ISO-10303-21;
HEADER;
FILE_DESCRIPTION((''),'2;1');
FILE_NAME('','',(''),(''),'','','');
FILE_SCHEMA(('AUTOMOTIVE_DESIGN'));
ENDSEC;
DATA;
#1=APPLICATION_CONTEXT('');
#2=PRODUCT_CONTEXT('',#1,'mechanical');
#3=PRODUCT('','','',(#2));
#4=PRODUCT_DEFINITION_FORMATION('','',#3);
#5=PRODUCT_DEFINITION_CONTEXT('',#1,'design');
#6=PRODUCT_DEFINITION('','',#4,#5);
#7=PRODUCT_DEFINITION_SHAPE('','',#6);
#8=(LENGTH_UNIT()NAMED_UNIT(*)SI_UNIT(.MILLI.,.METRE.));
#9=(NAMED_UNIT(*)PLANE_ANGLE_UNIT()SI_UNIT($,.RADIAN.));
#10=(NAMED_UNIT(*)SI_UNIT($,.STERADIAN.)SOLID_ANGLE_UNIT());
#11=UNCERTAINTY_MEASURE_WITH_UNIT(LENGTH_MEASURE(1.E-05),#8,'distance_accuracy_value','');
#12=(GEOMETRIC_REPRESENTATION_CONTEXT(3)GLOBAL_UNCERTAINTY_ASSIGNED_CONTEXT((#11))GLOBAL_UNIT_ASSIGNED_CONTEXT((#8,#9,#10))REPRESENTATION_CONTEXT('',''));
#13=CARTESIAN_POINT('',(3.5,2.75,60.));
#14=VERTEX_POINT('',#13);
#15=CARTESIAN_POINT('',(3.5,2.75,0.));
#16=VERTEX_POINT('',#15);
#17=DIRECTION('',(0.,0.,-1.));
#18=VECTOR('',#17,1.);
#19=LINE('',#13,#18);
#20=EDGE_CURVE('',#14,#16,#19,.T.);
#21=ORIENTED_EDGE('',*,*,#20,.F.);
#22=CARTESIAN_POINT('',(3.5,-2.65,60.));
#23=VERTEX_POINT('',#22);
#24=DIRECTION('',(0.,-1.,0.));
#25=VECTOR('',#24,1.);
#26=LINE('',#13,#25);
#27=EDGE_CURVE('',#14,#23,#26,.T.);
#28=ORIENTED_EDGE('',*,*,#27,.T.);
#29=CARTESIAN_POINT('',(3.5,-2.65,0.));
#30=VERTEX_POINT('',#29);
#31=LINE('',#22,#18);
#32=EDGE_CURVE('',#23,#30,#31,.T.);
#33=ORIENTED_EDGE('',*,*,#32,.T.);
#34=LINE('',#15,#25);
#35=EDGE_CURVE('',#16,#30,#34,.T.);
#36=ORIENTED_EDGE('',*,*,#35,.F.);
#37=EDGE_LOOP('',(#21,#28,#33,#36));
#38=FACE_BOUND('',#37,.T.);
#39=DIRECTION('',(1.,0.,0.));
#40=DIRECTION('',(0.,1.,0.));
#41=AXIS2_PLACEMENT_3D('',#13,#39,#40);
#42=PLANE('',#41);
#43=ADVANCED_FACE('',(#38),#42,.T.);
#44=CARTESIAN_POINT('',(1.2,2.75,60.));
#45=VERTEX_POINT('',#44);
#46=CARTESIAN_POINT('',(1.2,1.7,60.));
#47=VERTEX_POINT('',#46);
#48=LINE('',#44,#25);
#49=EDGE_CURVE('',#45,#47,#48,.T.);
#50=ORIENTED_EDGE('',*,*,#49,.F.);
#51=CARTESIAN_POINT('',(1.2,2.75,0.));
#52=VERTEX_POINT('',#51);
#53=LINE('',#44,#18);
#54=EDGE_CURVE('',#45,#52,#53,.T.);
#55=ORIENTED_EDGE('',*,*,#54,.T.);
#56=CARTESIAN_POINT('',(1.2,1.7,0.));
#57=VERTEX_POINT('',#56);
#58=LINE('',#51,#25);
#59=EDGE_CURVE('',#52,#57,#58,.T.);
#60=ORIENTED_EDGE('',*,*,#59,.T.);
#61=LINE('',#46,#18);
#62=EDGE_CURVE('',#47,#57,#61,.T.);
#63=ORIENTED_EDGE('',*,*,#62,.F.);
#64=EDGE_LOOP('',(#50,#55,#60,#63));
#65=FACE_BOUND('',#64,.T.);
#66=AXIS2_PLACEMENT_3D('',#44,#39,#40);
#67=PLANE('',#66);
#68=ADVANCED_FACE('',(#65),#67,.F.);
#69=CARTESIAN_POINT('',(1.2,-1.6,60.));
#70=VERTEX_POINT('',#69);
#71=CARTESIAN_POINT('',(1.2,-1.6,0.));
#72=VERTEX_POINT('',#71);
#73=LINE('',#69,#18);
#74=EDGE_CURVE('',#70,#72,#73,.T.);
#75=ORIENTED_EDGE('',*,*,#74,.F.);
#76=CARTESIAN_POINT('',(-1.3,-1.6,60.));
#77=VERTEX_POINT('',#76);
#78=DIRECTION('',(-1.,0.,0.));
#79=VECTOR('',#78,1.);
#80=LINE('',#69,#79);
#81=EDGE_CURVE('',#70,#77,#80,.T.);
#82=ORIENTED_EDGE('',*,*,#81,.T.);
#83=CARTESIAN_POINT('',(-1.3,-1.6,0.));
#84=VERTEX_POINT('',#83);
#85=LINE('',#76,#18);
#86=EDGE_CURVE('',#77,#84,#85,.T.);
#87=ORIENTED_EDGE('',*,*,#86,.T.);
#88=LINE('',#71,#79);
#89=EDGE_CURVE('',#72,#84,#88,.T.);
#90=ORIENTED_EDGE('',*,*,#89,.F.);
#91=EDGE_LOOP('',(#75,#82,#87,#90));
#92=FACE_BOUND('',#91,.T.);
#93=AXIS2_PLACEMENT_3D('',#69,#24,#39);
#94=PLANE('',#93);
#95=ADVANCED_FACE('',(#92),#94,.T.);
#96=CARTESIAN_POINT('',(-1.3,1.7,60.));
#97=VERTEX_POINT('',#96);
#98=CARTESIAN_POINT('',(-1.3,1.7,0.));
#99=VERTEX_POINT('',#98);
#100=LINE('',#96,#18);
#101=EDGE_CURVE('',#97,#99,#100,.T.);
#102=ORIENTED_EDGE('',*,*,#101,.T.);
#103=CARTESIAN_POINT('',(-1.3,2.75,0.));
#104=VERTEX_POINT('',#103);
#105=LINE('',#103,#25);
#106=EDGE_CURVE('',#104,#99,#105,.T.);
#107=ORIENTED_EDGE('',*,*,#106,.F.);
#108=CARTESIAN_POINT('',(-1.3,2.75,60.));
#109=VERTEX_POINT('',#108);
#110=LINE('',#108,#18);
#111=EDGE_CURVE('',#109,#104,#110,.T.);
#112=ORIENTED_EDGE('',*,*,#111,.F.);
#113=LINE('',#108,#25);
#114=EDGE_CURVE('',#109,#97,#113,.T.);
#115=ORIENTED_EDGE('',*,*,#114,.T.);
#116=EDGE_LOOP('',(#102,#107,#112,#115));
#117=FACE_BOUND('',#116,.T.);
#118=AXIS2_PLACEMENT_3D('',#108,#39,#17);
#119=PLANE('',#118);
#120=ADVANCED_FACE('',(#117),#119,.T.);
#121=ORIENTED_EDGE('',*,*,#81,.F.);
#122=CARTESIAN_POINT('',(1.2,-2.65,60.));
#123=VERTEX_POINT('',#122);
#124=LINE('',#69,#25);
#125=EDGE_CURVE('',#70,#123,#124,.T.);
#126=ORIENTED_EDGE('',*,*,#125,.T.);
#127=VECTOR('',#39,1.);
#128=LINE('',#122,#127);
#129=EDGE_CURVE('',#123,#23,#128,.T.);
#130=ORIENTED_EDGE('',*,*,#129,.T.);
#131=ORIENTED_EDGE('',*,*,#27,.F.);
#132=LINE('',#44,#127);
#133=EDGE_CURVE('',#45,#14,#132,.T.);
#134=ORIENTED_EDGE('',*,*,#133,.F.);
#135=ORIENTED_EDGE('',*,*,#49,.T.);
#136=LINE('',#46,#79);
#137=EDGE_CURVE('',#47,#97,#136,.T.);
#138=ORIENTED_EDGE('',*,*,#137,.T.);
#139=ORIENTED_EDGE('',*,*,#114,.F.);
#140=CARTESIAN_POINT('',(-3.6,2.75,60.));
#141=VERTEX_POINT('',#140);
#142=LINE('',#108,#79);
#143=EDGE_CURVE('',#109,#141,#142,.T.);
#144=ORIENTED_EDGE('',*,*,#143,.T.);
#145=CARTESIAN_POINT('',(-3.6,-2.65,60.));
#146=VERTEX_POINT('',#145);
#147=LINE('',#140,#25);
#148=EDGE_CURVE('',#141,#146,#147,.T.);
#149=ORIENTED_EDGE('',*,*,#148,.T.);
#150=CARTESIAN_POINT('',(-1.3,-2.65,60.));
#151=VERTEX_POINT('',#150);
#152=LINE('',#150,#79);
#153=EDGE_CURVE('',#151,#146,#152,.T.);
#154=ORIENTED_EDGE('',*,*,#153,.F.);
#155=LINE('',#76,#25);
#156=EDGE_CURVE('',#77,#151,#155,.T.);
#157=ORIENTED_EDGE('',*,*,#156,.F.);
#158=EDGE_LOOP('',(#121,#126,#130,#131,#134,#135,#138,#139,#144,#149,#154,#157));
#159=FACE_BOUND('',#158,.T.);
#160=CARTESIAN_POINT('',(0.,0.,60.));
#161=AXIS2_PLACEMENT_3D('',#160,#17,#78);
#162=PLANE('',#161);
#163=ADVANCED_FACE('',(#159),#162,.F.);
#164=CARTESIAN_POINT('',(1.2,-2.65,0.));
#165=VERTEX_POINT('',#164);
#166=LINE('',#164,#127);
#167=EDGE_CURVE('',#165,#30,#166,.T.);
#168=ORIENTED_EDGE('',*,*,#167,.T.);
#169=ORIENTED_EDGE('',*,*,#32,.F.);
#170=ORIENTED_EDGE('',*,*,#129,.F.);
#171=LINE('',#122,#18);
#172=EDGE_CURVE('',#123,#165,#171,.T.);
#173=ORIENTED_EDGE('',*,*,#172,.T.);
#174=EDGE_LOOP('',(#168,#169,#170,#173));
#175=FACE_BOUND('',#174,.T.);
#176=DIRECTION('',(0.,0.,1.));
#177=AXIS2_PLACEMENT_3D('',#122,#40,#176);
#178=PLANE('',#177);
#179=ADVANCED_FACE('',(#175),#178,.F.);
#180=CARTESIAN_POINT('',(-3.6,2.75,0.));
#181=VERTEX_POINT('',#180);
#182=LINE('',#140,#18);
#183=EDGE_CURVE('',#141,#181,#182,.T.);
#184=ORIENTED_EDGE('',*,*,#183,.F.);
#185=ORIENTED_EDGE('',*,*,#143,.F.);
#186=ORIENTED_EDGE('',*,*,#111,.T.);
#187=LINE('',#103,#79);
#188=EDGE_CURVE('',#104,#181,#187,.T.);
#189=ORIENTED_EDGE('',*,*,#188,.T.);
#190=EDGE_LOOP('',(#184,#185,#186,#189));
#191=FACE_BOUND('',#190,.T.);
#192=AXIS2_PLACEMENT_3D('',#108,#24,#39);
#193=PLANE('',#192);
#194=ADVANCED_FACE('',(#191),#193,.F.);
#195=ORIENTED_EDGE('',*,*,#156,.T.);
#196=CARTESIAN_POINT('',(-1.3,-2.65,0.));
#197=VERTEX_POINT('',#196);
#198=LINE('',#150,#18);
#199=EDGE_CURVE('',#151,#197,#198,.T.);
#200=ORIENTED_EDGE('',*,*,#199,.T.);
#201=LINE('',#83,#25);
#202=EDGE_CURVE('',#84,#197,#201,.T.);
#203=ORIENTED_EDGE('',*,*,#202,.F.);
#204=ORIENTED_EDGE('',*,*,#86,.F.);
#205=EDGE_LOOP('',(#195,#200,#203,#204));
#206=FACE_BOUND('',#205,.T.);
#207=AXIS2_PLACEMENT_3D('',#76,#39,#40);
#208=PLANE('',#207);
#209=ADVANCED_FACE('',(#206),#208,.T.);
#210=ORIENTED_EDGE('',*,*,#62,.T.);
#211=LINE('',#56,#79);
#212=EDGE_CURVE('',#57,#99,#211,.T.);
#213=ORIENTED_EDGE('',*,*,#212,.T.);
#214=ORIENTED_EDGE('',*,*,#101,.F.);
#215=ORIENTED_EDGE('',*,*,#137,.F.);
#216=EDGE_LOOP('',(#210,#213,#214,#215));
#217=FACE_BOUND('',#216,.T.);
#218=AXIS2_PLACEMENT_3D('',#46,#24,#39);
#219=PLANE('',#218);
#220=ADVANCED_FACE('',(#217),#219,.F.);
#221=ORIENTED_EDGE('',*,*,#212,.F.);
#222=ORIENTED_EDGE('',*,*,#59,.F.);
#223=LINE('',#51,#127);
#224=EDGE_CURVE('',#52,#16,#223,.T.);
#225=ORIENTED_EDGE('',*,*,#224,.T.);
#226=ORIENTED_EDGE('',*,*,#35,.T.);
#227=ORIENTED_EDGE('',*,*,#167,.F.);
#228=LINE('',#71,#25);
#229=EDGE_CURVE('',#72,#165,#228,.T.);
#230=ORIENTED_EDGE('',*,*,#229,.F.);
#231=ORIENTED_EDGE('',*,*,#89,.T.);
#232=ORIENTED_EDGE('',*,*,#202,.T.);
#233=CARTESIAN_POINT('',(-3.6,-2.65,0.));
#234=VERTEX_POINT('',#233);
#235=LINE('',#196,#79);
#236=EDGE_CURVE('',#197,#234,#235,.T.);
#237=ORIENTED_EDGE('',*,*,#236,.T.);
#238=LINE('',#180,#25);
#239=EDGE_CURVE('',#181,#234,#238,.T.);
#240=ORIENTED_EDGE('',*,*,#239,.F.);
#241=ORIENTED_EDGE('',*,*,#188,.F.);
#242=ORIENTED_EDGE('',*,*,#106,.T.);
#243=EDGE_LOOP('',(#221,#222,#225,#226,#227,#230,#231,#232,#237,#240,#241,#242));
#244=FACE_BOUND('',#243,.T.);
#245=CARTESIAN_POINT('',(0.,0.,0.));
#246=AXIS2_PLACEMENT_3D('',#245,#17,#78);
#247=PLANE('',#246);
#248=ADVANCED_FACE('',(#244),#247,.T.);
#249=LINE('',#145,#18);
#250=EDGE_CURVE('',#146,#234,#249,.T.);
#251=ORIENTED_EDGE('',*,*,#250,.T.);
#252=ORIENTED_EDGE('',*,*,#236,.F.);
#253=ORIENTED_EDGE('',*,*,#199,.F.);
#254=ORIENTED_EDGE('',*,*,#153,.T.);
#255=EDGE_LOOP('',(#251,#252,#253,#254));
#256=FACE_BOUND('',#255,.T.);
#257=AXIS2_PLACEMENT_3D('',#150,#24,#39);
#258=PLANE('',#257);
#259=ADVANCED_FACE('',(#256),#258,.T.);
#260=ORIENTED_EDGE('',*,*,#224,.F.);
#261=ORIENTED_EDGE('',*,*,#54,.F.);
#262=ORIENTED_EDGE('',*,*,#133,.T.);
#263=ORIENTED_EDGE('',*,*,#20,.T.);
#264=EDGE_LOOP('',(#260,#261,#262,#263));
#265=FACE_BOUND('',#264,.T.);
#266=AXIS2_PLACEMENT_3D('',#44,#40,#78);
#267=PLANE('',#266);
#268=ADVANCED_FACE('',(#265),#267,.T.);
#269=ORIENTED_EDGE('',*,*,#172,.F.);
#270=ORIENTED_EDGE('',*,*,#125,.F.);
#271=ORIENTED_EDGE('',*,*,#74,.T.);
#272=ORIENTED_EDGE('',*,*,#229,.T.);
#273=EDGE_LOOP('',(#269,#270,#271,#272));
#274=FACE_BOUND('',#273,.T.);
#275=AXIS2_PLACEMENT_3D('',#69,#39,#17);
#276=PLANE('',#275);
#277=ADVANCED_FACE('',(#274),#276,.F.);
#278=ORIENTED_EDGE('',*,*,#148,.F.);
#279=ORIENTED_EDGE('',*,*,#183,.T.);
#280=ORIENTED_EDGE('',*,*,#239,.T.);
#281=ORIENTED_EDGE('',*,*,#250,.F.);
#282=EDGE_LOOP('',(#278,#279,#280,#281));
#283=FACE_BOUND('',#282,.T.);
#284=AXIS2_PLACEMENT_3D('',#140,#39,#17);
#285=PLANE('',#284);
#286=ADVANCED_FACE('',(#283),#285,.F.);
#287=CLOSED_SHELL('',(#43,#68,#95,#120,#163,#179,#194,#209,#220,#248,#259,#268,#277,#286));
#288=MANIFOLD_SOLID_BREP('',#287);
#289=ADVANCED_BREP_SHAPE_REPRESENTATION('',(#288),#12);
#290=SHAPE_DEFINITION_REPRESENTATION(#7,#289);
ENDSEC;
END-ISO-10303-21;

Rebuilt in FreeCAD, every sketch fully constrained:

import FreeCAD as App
import Part
import Sketcher
Q = App.Units.Quantity


def add_polygon(sketch, points):
    """Adds a closed chain of lines whose ends are joined by coincident constraints."""
    first, n = sketch.GeometryCount, len(points)
    for a, b in zip(points, points[1:] + points[:1]):
        sketch.addGeometry(Part.LineSegment(App.Vector(*a, 0), App.Vector(*b, 0)), False)
    for i in range(n):
        sketch.addConstraint(Sketcher.Constraint("Coincident", first + i, 2, first + (i + 1) % n, 1))

doc = App.newDocument("Part")
body = doc.addObject("PartDesign::Body", "Body")

# Sketch on XY plane
sketch1 = body.newObject("Sketcher::SketchObject", "Sketch")
sketch1.AttachmentSupport = (doc.getObject("XY_Plane"), [""])
sketch1.MapMode = "FlatFace"
add_polygon(sketch1, [(-1.3, 2.8), (-3.6, 2.8), (-3.6, -2.6), (-1.3, -2.6), (-1.3, -1.6), (1.2, -1.6), (1.2, -2.6), (3.5, -2.6), (3.5, 2.8), (1.2, 2.8), (1.2, 1.7), (-1.3, 1.7)])  # lines 0-11
sketch1.addConstraint(Sketcher.Constraint("Horizontal", 0))
sketch1.addConstraint(Sketcher.Constraint("Vertical", 1))
sketch1.addConstraint(Sketcher.Constraint("Horizontal", 2))
sketch1.addConstraint(Sketcher.Constraint("Vertical", 3))
sketch1.addConstraint(Sketcher.Constraint("Horizontal", 4))
sketch1.addConstraint(Sketcher.Constraint("Vertical", 5))
sketch1.addConstraint(Sketcher.Constraint("Horizontal", 6))
sketch1.addConstraint(Sketcher.Constraint("Vertical", 7))
sketch1.addConstraint(Sketcher.Constraint("Horizontal", 8))
sketch1.addConstraint(Sketcher.Constraint("Vertical", 9))
sketch1.addConstraint(Sketcher.Constraint("Horizontal", 10))
sketch1.addConstraint(Sketcher.Constraint("Vertical", 11))
sketch1.addConstraint(Sketcher.Constraint("Horizontal", 2, 2, 5, 2))
sketch1.addConstraint(Sketcher.Constraint("Horizontal", 0, 2, 7, 2))
sketch1.addConstraint(Sketcher.Constraint("Vertical", 5, 2, 8, 2))
sketch1.addConstraint(Sketcher.Constraint("Vertical", 3, 2, 10, 2))
sketch1.addConstraint(Sketcher.Constraint("Equal", 2, 6))
sketch1.addConstraint(Sketcher.Constraint("Equal", 5, 9))
sketch1.addConstraint(Sketcher.Constraint("DistanceX", 0, 2, 0, 1, Q("2.3 mm")))
sketch1.addConstraint(Sketcher.Constraint("DistanceX", 4, 1, 4, 2, Q("2.5 mm")))
sketch1.addConstraint(Sketcher.Constraint("DistanceY", 1, 2, 1, 1, Q("5.4 mm")))
sketch1.addConstraint(Sketcher.Constraint("DistanceY", 3, 1, 3, 2, Q("1.05 mm")))
sketch1.addConstraint(Sketcher.Constraint("DistanceX", 0, 2, -1, 1, Q("3.6 mm")))
sketch1.addConstraint(Sketcher.Constraint("DistanceY", 3, 2, -1, 1, Q("1.6 mm")))
pad1 = body.newObject("PartDesign::Pad", "Pad")
pad1.Profile = sketch1
pad1.Length = 60

doc.recompute()
